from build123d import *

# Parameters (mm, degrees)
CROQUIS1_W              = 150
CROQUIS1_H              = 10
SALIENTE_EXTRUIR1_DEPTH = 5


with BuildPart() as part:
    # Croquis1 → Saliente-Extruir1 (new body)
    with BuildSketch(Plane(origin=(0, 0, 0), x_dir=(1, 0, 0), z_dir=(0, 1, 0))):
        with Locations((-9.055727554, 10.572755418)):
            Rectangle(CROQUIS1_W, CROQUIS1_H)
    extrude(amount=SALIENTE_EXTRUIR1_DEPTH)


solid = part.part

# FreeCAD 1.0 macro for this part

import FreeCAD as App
import Part
import Sketcher
from FreeCAD import Vector

doc = App.newDocument("Part")
body = doc.addObject("PartDesign::Body", "Body")

sketch1 = body.newObject("Sketcher::SketchObject", "Sketch")
sketch1.AttachmentSupport = (doc.getObject("XZ_Plane"), [""])
sketch1.MapMode = "FlatFace"
sketch1.addGeometry([
    Part.LineSegment(Vector(-84, -16, 0), Vector(-84, -6, 0)),
    Part.LineSegment(Vector(-84, -6, 0), Vector(66, -6, 0)),
    Part.LineSegment(Vector(66, -6, 0), Vector(66, -16, 0)),
    Part.LineSegment(Vector(66, -16, 0), Vector(-84, -16, 0)),
], False)
sketch1.addConstraint([
    Sketcher.Constraint("Coincident", 0, 2, 1, 1),
    Sketcher.Constraint("Coincident", 1, 2, 2, 1),
    Sketcher.Constraint("Coincident", 2, 2, 3, 1),
    Sketcher.Constraint("Coincident", 3, 2, 0, 1),
    Sketcher.Constraint("Vertical", 0),
    Sketcher.Constraint("Horizontal", 1),
    Sketcher.Constraint("Vertical", 2),
    Sketcher.Constraint("Horizontal", 3),
    Sketcher.Constraint("DistanceX", 1, 1, 1, 2, 150.0),
    Sketcher.Constraint("DistanceY", 0, 1, 0, 2, 10.0),
    Sketcher.Constraint("DistanceX", 0, 2, -1, 1, 84.055728),
    Sketcher.Constraint("DistanceY", 0, 2, -1, 1, 5.572755),
])
pad1 = body.newObject("PartDesign::Pad", "Pad")
pad1.Profile = sketch1
pad1.Length = 5
pad1.Reversed = True

doc.recompute()
